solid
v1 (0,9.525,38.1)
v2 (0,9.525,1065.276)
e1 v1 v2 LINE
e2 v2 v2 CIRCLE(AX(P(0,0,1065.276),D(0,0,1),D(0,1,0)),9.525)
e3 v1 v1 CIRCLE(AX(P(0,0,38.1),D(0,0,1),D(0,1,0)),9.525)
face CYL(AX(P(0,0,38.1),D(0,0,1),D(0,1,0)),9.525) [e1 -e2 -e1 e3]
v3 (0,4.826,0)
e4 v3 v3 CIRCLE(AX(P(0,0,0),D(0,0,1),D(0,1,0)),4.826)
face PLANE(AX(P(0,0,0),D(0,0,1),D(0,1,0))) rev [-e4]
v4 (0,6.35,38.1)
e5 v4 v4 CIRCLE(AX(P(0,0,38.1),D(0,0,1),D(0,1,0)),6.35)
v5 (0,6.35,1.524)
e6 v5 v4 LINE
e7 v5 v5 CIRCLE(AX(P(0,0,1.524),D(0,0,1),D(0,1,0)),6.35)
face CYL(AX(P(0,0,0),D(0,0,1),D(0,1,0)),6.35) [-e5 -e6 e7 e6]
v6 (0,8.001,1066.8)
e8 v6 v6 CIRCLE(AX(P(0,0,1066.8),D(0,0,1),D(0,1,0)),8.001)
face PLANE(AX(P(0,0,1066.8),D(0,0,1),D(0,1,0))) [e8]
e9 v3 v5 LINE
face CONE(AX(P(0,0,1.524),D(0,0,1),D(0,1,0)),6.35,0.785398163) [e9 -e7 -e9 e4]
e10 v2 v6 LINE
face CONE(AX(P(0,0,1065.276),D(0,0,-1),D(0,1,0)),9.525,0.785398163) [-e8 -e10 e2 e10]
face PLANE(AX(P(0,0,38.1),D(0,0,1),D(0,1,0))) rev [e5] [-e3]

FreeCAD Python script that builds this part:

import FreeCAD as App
import Part
import Sketcher
from FreeCAD import Vector
Q = App.Units.Quantity


def edges_at(feature, points):
    """Names of the edges that pass closest to the given points."""
    edges = feature.Shape.Edges
    near = lambda p: min(range(len(edges)), key=lambda i: edges[i].distToShape(Part.Vertex(*p))[0])
    return sorted({f"Edge{near(p) + 1}" for p in points})

doc = App.newDocument("Part")
params = doc.addObject("Spreadsheet::Sheet", "Params")
for row, (alias, value) in enumerate([
    ("sketch1_height", "42 in"),
    ("sketch1_height2", "1.5 in"),
    ("sketch1_width", "0.25 in"),
    ("sketch1_width2", "0.125 in"),
    ("revolution_angle", "360 deg"),
    ("chamfer_size", "0.06 in"),
], start=1):
    params.set(f"A{row}", alias)
    params.set(f"B{row}", "=" + value)
    params.setAlias(f"B{row}", alias)

body = doc.addObject("PartDesign::Body", "Body")

sketch1 = body.newObject("Sketcher::SketchObject", "Sketch")
sketch1.AttachmentSupport = (doc.getObject("YZ_Plane"), [""])
sketch1.MapMode = "FlatFace"
sketch1.addGeometry([
    Part.LineSegment(Vector(0, 1066.8, 0), Vector(0, 0, 0)),
    Part.LineSegment(Vector(0, 0, 0), Vector(6.3, 0, 0)),
    Part.LineSegment(Vector(6.3, 0, 0), Vector(6.3, 38.1, 0)),
    Part.LineSegment(Vector(6.3, 38.1, 0), Vector(9.5, 38.1, 0)),
    Part.LineSegment(Vector(9.5, 38.1, 0), Vector(9.5, 1066.8, 0)),
    Part.LineSegment(Vector(9.5, 1066.8, 0), Vector(0, 1066.8, 0)),
], False)
sketch1.addConstraint([
    Sketcher.Constraint("Coincident", 0, 2, 1, 1),
    Sketcher.Constraint("Coincident", 1, 2, 2, 1),
    Sketcher.Constraint("Coincident", 2, 2, 3, 1),
    Sketcher.Constraint("Coincident", 3, 2, 4, 1),
    Sketcher.Constraint("Coincident", 4, 2, 5, 1),
    Sketcher.Constraint("Coincident", 5, 2, 0, 1),
    Sketcher.Constraint("Vertical", 0),
    Sketcher.Constraint("Horizontal", 1),
    Sketcher.Constraint("Vertical", 2),
    Sketcher.Constraint("Horizontal", 3),
    Sketcher.Constraint("Vertical", 4),
    Sketcher.Constraint("Horizontal", 5),
    Sketcher.Constraint("Coincident", 0, 2, -1, 1),
    Sketcher.Constraint("DistanceY", 0, 2, 0, 1, Q("42 in")),
    Sketcher.Constraint("DistanceY", 2, 1, 2, 2, Q("1.5 in")),
    Sketcher.Constraint("DistanceX", 1, 1, 1, 2, Q("0.25 in")),
    Sketcher.Constraint("DistanceX", 3, 1, 3, 2, Q("0.125 in")),
])
sketch1.setExpression("Constraints[13]", "Params.sketch1_height")
sketch1.setExpression("Constraints[14]", "Params.sketch1_height2")
sketch1.setExpression("Constraints[15]", "Params.sketch1_width")
sketch1.setExpression("Constraints[16]", "Params.sketch1_width2")
revolution = body.newObject("PartDesign::Revolution", "Revolution")
revolution.Profile = sketch1
revolution.ReferenceAxis = (sketch1, ["V_Axis"])
revolution.setExpression("Angle", "Params.revolution_angle")
doc.recompute()

chamfer = body.newObject("PartDesign::Chamfer", "Chamfer")
chamfer.Base = (revolution, edges_at(revolution, [(0, -6.35, 0), (0, -9.525, 1066.8)]))
chamfer.setExpression("Size", "Params.chamfer_size")

doc.recompute()
